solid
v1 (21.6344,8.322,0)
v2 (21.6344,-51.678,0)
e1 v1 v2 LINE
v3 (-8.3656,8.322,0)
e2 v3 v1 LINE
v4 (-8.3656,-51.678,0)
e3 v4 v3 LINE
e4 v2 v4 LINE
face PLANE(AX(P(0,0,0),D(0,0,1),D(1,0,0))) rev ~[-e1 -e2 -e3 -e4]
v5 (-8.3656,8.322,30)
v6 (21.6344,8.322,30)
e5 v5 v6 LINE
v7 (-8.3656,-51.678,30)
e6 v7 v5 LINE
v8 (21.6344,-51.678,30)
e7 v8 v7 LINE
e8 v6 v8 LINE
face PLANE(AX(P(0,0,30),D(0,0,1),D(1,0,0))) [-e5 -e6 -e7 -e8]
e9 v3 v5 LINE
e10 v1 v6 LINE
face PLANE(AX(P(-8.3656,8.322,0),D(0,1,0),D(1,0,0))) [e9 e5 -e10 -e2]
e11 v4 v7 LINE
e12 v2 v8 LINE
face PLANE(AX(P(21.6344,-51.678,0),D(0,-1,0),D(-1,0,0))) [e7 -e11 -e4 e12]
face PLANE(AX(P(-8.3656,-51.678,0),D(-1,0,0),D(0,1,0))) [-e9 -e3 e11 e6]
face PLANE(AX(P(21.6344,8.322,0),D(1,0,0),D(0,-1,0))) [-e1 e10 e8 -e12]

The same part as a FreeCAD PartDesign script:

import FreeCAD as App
import Part
import Sketcher
from FreeCAD import Vector

doc = App.newDocument("Part")
body = doc.addObject("PartDesign::Body", "Body")

sketch1 = body.newObject("Sketcher::SketchObject", "Sketch")
sketch1.AttachmentSupport = (doc.getObject("XY_Plane"), [""])
sketch1.MapMode = "FlatFace"
sketch1.addGeometry([
    Part.LineSegment(Vector(21.6344, 8.322, 0), Vector(-8.3656, 8.322, 0)),
    Part.LineSegment(Vector(-8.3656, 8.322, 0), Vector(-8.3656, -51.678, 0)),
    Part.LineSegment(Vector(-8.3656, -51.678, 0), Vector(21.6344, -51.678, 0)),
    Part.LineSegment(Vector(21.6344, -51.678, 0), Vector(21.6344, 8.322, 0)),
], False)
sketch1.addConstraint([
    Sketcher.Constraint("Coincident", 0, 2, 1, 1),
    Sketcher.Constraint("Coincident", 1, 2, 2, 1),
    Sketcher.Constraint("Coincident", 2, 2, 3, 1),
    Sketcher.Constraint("Coincident", 3, 2, 0, 1),
    Sketcher.Constraint("Horizontal", 0),
    Sketcher.Constraint("Vertical", 1),
    Sketcher.Constraint("Horizontal", 2),
    Sketcher.Constraint("Vertical", 3),
    Sketcher.Constraint("DistanceX", 0, 2, 0, 1, 30.0),
    Sketcher.Constraint("DistanceY", 1, 2, 1, 1, 60.0),
    Sketcher.Constraint("DistanceY", -1, 1, 0, 2, 8.322),
    Sketcher.Constraint("DistanceX", 0, 2, -1, 1, 8.3656),
])
pad1 = body.newObject("PartDesign::Pad", "Pad")
pad1.Profile = sketch1
pad1.Length = 30

doc.recompute()
